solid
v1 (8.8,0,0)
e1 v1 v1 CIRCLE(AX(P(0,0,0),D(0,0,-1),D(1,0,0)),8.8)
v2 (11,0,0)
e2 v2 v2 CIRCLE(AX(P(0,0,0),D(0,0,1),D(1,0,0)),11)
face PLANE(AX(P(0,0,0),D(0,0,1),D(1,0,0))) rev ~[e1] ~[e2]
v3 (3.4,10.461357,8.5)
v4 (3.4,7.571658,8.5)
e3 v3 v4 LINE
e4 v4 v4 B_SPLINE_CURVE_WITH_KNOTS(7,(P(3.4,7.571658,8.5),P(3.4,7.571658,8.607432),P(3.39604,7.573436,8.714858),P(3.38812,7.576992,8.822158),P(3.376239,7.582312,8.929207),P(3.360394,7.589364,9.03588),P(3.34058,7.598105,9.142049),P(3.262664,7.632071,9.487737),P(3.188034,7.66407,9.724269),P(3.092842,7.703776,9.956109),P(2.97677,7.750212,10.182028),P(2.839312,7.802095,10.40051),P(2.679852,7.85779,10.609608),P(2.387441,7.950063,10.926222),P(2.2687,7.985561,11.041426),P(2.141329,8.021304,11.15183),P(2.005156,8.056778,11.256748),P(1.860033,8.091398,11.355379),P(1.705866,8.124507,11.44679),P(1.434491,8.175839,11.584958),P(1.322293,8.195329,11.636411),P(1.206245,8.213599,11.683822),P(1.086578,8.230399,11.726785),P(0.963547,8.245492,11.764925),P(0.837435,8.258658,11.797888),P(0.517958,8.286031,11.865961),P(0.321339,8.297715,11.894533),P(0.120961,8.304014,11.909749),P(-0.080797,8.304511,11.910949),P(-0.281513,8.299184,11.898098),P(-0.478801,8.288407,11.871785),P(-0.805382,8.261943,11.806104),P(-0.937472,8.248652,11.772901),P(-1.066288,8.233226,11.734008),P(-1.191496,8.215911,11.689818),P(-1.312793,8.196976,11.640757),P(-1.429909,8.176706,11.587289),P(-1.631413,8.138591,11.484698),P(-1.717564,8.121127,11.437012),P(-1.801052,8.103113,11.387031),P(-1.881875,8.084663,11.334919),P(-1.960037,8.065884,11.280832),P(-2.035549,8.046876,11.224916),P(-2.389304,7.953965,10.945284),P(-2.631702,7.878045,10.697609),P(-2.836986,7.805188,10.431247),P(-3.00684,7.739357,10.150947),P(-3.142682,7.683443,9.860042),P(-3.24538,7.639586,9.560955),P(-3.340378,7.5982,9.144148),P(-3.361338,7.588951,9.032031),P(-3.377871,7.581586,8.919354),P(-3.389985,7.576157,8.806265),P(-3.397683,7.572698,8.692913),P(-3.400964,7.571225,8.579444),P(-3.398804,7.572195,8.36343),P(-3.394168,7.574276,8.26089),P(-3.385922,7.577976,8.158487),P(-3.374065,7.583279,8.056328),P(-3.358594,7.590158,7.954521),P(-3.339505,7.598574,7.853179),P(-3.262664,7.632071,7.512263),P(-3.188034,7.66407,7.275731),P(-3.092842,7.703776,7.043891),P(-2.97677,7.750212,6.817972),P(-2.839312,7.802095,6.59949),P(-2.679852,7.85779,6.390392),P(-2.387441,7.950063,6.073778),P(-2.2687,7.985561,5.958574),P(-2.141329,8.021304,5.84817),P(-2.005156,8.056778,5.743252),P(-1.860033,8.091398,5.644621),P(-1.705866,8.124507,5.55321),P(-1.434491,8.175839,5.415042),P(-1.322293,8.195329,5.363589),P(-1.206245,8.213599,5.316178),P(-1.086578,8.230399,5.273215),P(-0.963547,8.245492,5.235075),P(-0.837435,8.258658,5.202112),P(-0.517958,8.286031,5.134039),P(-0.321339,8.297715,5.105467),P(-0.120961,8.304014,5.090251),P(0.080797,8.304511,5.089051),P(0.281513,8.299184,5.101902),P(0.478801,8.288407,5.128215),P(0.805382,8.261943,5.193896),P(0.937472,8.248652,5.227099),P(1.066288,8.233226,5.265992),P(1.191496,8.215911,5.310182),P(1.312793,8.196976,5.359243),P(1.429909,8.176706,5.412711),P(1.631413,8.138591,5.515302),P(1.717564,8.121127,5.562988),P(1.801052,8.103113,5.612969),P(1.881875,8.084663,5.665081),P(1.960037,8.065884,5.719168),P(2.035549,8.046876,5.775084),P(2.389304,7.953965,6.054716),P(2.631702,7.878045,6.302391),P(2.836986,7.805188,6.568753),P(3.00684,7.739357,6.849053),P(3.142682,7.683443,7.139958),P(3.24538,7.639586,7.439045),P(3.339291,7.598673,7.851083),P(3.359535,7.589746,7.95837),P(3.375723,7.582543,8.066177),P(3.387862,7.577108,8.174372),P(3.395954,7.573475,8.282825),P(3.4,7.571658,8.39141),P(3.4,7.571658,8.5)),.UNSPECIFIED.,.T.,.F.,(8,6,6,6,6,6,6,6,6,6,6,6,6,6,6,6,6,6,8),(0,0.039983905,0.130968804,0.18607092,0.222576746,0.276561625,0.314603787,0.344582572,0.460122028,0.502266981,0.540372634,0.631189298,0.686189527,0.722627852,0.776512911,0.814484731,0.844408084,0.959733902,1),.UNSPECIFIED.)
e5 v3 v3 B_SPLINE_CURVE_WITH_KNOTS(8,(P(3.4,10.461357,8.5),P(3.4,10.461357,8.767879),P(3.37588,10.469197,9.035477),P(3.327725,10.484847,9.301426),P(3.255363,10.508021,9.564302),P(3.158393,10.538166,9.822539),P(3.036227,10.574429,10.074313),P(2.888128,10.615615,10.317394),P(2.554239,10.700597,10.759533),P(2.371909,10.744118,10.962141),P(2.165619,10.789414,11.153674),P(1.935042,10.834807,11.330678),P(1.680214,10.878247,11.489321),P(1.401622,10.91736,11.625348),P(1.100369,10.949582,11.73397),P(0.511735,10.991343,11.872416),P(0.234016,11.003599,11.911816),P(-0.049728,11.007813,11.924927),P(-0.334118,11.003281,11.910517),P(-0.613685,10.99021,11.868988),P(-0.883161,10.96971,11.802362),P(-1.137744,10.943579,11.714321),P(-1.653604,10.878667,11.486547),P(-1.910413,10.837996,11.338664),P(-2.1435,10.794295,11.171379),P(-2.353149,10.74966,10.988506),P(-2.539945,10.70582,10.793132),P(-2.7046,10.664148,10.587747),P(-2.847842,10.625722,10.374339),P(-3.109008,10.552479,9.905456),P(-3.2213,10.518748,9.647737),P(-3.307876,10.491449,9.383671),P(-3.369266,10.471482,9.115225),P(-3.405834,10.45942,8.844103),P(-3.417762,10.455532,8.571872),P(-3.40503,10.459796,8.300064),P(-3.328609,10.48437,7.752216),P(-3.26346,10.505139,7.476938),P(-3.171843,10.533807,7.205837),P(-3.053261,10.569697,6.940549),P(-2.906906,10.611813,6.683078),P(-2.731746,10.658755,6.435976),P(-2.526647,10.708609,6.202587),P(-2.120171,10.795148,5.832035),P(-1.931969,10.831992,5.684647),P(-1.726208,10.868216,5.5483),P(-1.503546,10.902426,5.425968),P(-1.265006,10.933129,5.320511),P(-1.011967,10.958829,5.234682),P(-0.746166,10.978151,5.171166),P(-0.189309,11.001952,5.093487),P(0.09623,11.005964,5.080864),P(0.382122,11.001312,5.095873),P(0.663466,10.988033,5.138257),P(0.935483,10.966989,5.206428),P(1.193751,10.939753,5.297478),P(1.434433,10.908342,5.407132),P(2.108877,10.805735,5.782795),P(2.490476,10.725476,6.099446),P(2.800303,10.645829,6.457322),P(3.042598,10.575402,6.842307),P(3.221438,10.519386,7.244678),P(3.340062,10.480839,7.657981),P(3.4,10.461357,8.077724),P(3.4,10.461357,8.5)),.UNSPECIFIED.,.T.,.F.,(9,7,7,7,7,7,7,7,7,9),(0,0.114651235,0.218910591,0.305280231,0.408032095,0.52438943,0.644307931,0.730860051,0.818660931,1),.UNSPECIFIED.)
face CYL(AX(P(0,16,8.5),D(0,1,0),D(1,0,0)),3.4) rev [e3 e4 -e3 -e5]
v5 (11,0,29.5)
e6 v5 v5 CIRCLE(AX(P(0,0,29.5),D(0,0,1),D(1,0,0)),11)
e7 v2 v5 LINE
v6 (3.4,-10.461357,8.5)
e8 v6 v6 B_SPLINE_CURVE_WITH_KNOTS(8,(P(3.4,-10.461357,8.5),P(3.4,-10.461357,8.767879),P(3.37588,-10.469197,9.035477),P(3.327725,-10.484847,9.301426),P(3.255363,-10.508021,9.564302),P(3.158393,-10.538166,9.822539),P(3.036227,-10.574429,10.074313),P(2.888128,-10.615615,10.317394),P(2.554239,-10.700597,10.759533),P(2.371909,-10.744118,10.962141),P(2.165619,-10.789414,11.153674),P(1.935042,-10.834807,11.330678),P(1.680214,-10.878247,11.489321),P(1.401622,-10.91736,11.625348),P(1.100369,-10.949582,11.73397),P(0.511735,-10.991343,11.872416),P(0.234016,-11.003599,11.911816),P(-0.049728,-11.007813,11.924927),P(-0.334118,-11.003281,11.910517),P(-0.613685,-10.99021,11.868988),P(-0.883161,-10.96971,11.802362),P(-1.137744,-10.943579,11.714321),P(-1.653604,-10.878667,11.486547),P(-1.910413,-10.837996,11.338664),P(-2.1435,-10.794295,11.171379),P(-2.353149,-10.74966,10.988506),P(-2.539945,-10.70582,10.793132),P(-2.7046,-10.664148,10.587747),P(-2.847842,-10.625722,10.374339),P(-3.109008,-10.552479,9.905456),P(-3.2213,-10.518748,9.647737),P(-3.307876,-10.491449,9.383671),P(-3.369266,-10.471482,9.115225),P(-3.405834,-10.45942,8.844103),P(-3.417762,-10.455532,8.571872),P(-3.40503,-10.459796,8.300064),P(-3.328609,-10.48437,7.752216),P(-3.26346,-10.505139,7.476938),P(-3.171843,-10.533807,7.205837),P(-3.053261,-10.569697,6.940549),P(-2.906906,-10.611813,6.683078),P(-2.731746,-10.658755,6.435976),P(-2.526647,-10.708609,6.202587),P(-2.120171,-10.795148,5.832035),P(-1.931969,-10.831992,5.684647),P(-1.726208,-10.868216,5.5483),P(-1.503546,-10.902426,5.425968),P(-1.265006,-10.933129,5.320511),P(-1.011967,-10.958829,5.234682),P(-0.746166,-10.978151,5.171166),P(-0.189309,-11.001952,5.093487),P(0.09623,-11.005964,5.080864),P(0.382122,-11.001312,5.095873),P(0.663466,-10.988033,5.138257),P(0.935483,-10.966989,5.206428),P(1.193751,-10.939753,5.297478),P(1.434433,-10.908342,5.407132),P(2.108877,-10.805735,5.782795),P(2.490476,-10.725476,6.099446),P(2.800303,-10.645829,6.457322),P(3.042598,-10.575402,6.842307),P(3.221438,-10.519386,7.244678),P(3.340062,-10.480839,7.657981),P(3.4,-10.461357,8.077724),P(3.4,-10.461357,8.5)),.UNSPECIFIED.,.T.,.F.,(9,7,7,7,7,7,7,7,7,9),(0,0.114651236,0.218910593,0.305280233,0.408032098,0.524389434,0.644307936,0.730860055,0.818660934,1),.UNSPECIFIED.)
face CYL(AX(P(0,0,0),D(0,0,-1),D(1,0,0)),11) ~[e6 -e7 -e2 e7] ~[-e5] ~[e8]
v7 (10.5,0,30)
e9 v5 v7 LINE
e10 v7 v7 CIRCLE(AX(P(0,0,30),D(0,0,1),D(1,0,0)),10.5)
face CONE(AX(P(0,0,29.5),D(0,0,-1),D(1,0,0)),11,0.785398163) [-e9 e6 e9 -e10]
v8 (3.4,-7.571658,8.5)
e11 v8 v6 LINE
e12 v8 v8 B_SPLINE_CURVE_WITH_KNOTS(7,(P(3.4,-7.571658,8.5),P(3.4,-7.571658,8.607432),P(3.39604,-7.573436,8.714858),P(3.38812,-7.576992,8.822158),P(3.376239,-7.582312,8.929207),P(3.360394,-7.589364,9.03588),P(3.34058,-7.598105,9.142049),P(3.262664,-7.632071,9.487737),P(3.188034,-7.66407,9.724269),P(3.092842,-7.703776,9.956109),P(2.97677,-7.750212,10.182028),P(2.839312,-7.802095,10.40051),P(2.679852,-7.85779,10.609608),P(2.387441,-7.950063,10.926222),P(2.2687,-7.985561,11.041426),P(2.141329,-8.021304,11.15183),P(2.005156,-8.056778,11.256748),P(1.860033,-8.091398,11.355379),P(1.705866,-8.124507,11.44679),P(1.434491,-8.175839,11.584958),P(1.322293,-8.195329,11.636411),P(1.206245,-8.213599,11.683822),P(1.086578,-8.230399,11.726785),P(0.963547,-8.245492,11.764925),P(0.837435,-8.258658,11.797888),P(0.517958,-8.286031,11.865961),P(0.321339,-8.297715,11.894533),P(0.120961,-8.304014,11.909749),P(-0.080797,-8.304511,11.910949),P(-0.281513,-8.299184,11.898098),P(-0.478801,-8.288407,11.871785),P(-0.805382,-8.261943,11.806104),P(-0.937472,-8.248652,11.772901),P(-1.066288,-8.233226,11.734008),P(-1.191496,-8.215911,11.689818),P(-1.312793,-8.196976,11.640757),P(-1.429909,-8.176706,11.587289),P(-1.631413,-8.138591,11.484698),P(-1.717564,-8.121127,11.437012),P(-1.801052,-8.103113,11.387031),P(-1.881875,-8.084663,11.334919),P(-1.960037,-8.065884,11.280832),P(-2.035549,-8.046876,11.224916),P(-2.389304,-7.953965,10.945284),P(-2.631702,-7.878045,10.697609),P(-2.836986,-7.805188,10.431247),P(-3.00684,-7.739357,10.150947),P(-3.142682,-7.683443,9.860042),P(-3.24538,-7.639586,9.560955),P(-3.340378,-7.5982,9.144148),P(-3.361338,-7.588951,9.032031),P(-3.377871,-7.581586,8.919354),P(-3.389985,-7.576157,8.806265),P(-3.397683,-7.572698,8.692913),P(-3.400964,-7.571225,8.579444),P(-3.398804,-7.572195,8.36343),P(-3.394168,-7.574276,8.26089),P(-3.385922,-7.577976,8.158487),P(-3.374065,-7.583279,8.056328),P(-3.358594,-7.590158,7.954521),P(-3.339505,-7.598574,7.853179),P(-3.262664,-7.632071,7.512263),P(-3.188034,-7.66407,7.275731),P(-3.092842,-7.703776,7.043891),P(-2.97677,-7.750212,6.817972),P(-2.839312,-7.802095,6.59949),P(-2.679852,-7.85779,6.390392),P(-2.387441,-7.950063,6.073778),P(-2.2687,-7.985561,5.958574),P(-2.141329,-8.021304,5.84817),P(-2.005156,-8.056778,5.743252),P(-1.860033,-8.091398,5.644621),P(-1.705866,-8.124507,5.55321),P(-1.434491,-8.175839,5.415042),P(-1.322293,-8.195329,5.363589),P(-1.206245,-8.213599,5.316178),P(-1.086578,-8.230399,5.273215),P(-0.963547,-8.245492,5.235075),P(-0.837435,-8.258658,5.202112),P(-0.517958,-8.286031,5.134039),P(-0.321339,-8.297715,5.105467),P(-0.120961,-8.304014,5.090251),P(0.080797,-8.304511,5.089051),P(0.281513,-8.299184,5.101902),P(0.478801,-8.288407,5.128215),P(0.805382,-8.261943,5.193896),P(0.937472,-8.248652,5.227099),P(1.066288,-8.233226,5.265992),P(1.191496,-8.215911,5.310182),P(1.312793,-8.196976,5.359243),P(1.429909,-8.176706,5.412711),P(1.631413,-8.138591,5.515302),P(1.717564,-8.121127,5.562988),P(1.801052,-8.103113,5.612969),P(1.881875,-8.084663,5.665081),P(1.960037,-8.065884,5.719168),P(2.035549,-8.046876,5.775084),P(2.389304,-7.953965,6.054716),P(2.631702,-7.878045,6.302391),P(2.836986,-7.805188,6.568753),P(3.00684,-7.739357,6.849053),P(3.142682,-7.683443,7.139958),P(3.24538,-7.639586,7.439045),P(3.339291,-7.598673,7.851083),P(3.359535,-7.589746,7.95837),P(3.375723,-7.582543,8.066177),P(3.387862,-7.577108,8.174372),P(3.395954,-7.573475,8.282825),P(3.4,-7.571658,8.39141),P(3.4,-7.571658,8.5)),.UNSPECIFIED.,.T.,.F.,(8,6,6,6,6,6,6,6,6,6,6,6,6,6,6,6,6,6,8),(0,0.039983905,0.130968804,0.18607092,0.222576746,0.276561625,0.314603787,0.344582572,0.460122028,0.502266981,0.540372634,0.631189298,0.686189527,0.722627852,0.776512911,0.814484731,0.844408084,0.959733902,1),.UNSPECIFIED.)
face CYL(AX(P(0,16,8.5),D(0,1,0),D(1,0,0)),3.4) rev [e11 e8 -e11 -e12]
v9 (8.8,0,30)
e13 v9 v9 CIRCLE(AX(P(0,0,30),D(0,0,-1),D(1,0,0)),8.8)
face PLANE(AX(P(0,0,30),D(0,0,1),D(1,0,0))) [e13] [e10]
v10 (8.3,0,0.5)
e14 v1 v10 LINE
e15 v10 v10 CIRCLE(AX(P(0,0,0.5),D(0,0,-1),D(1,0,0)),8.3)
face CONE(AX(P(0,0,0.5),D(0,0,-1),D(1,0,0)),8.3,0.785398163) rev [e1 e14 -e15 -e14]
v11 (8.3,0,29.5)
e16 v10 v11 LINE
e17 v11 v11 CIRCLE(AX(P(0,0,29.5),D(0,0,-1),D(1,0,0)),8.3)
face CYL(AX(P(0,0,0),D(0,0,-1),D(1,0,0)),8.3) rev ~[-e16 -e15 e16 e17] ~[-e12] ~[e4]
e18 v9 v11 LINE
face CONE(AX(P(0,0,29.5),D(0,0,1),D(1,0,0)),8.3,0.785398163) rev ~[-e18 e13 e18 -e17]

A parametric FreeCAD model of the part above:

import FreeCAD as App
import Part
import Sketcher

V = App.Vector


def edges_at(feature, points):
    """Names of the edges that pass closest to the given points."""
    edges = feature.Shape.Edges
    near = lambda p: min(range(len(edges)), key=lambda i: edges[i].distToShape(Part.Vertex(*p))[0])
    return sorted({f"Edge{near(p) + 1}" for p in points})

doc = App.newDocument("Part")
body = doc.addObject("PartDesign::Body", "Body")

# Sketch on XY plane
sketch1 = doc.addObject("Sketcher::SketchObject", "Sketch")
body.addObject(sketch1)
sketch1.AttachmentSupport = (doc.XY_Plane, [""])
sketch1.MapMode = "FlatFace"
sketch1.addGeometry(Part.Circle(V(0, 0, 0), V(0, 0, 1), 3.4), False)
sketch1.addConstraint([
    Sketcher.Constraint("Coincident", 0, 3, -1, 1),
    Sketcher.Constraint("Diameter", 0, 6.8),
])
pad1 = doc.addObject("PartDesign::Pad", "Pad")
body.addObject(pad1)
pad1.Profile = sketch1
pad1.Length = 100
body2 = doc.addObject("PartDesign::Body", "Body001")
doc.recompute()

body.Placement = App.Placement(V(0, 0, 0), App.Rotation(V(1, 0, 0), 90))
boolean = doc.addObject("PartDesign::Boolean", "Boolean")
body2.addObject(boolean)
boolean.Type = "Fuse"
boolean.addObjects([body])
body3 = doc.addObject("PartDesign::Body", "Body002")
doc.recompute()

body2.Placement = App.Placement(V(0, 16, 8.5), App.Rotation(V(0, 0, 1), 0))
boolean2 = doc.addObject("PartDesign::Boolean", "Boolean001")
body3.addObject(boolean2)
boolean2.Type = "Fuse"
boolean2.addObjects([body2])
body4 = doc.addObject("PartDesign::Body", "Body003")

# Sketch on XY plane
sketch2 = doc.addObject("Sketcher::SketchObject", "Sketch001")
body4.addObject(sketch2)
sketch2.AttachmentSupport = (doc.getObject("XY_Plane003"), [""])
sketch2.MapMode = "FlatFace"
sketch2.addGeometry(Part.Circle(V(0, 0, 0), V(0, 0, 1), 11), False)
sketch2.addConstraint([
    Sketcher.Constraint("Coincident", 0, 3, -1, 1),
    Sketcher.Constraint("Diameter", 0, 22.0),
])
pad2 = doc.addObject("PartDesign::Pad", "Pad001")
body4.addObject(pad2)
pad2.Profile = sketch2
pad2.Length = 30

# Sketch on XY plane
sketch3 = doc.addObject("Sketcher::SketchObject", "Sketch002")
body4.addObject(sketch3)
sketch3.AttachmentSupport = (doc.getObject("XY_Plane003"), [""])
sketch3.MapMode = "FlatFace"
sketch3.addGeometry(Part.Circle(V(0, 0, 0), V(0, 0, 1), 8), False)
sketch3.addConstraint([
    Sketcher.Constraint("Coincident", 0, 3, -1, 1),
    Sketcher.Constraint("Diameter", 0, 16.6),
])
pocket1 = doc.addObject("PartDesign::Pocket", "Pocket")
body4.addObject(pocket1)
pocket1.Profile = sketch3
pocket1.Type = "ThroughAll"
pocket1.Reversed = True
doc.recompute()

boolean3 = doc.addObject("PartDesign::Boolean", "Boolean002")
body4.addObject(boolean3)
boolean3.Type = "Cut"
boolean3.addObjects([body3])
doc.recompute()

chamfer = doc.addObject("PartDesign::Chamfer", "Chamfer")
body4.addObject(chamfer)
chamfer.Base = (boolean3, edges_at(boolean3, [(-8.3, 0, 0), (-8.3, 0, 30), (-11, 0, 30)]))
chamfer.Size = 0.5

doc.recompute()
